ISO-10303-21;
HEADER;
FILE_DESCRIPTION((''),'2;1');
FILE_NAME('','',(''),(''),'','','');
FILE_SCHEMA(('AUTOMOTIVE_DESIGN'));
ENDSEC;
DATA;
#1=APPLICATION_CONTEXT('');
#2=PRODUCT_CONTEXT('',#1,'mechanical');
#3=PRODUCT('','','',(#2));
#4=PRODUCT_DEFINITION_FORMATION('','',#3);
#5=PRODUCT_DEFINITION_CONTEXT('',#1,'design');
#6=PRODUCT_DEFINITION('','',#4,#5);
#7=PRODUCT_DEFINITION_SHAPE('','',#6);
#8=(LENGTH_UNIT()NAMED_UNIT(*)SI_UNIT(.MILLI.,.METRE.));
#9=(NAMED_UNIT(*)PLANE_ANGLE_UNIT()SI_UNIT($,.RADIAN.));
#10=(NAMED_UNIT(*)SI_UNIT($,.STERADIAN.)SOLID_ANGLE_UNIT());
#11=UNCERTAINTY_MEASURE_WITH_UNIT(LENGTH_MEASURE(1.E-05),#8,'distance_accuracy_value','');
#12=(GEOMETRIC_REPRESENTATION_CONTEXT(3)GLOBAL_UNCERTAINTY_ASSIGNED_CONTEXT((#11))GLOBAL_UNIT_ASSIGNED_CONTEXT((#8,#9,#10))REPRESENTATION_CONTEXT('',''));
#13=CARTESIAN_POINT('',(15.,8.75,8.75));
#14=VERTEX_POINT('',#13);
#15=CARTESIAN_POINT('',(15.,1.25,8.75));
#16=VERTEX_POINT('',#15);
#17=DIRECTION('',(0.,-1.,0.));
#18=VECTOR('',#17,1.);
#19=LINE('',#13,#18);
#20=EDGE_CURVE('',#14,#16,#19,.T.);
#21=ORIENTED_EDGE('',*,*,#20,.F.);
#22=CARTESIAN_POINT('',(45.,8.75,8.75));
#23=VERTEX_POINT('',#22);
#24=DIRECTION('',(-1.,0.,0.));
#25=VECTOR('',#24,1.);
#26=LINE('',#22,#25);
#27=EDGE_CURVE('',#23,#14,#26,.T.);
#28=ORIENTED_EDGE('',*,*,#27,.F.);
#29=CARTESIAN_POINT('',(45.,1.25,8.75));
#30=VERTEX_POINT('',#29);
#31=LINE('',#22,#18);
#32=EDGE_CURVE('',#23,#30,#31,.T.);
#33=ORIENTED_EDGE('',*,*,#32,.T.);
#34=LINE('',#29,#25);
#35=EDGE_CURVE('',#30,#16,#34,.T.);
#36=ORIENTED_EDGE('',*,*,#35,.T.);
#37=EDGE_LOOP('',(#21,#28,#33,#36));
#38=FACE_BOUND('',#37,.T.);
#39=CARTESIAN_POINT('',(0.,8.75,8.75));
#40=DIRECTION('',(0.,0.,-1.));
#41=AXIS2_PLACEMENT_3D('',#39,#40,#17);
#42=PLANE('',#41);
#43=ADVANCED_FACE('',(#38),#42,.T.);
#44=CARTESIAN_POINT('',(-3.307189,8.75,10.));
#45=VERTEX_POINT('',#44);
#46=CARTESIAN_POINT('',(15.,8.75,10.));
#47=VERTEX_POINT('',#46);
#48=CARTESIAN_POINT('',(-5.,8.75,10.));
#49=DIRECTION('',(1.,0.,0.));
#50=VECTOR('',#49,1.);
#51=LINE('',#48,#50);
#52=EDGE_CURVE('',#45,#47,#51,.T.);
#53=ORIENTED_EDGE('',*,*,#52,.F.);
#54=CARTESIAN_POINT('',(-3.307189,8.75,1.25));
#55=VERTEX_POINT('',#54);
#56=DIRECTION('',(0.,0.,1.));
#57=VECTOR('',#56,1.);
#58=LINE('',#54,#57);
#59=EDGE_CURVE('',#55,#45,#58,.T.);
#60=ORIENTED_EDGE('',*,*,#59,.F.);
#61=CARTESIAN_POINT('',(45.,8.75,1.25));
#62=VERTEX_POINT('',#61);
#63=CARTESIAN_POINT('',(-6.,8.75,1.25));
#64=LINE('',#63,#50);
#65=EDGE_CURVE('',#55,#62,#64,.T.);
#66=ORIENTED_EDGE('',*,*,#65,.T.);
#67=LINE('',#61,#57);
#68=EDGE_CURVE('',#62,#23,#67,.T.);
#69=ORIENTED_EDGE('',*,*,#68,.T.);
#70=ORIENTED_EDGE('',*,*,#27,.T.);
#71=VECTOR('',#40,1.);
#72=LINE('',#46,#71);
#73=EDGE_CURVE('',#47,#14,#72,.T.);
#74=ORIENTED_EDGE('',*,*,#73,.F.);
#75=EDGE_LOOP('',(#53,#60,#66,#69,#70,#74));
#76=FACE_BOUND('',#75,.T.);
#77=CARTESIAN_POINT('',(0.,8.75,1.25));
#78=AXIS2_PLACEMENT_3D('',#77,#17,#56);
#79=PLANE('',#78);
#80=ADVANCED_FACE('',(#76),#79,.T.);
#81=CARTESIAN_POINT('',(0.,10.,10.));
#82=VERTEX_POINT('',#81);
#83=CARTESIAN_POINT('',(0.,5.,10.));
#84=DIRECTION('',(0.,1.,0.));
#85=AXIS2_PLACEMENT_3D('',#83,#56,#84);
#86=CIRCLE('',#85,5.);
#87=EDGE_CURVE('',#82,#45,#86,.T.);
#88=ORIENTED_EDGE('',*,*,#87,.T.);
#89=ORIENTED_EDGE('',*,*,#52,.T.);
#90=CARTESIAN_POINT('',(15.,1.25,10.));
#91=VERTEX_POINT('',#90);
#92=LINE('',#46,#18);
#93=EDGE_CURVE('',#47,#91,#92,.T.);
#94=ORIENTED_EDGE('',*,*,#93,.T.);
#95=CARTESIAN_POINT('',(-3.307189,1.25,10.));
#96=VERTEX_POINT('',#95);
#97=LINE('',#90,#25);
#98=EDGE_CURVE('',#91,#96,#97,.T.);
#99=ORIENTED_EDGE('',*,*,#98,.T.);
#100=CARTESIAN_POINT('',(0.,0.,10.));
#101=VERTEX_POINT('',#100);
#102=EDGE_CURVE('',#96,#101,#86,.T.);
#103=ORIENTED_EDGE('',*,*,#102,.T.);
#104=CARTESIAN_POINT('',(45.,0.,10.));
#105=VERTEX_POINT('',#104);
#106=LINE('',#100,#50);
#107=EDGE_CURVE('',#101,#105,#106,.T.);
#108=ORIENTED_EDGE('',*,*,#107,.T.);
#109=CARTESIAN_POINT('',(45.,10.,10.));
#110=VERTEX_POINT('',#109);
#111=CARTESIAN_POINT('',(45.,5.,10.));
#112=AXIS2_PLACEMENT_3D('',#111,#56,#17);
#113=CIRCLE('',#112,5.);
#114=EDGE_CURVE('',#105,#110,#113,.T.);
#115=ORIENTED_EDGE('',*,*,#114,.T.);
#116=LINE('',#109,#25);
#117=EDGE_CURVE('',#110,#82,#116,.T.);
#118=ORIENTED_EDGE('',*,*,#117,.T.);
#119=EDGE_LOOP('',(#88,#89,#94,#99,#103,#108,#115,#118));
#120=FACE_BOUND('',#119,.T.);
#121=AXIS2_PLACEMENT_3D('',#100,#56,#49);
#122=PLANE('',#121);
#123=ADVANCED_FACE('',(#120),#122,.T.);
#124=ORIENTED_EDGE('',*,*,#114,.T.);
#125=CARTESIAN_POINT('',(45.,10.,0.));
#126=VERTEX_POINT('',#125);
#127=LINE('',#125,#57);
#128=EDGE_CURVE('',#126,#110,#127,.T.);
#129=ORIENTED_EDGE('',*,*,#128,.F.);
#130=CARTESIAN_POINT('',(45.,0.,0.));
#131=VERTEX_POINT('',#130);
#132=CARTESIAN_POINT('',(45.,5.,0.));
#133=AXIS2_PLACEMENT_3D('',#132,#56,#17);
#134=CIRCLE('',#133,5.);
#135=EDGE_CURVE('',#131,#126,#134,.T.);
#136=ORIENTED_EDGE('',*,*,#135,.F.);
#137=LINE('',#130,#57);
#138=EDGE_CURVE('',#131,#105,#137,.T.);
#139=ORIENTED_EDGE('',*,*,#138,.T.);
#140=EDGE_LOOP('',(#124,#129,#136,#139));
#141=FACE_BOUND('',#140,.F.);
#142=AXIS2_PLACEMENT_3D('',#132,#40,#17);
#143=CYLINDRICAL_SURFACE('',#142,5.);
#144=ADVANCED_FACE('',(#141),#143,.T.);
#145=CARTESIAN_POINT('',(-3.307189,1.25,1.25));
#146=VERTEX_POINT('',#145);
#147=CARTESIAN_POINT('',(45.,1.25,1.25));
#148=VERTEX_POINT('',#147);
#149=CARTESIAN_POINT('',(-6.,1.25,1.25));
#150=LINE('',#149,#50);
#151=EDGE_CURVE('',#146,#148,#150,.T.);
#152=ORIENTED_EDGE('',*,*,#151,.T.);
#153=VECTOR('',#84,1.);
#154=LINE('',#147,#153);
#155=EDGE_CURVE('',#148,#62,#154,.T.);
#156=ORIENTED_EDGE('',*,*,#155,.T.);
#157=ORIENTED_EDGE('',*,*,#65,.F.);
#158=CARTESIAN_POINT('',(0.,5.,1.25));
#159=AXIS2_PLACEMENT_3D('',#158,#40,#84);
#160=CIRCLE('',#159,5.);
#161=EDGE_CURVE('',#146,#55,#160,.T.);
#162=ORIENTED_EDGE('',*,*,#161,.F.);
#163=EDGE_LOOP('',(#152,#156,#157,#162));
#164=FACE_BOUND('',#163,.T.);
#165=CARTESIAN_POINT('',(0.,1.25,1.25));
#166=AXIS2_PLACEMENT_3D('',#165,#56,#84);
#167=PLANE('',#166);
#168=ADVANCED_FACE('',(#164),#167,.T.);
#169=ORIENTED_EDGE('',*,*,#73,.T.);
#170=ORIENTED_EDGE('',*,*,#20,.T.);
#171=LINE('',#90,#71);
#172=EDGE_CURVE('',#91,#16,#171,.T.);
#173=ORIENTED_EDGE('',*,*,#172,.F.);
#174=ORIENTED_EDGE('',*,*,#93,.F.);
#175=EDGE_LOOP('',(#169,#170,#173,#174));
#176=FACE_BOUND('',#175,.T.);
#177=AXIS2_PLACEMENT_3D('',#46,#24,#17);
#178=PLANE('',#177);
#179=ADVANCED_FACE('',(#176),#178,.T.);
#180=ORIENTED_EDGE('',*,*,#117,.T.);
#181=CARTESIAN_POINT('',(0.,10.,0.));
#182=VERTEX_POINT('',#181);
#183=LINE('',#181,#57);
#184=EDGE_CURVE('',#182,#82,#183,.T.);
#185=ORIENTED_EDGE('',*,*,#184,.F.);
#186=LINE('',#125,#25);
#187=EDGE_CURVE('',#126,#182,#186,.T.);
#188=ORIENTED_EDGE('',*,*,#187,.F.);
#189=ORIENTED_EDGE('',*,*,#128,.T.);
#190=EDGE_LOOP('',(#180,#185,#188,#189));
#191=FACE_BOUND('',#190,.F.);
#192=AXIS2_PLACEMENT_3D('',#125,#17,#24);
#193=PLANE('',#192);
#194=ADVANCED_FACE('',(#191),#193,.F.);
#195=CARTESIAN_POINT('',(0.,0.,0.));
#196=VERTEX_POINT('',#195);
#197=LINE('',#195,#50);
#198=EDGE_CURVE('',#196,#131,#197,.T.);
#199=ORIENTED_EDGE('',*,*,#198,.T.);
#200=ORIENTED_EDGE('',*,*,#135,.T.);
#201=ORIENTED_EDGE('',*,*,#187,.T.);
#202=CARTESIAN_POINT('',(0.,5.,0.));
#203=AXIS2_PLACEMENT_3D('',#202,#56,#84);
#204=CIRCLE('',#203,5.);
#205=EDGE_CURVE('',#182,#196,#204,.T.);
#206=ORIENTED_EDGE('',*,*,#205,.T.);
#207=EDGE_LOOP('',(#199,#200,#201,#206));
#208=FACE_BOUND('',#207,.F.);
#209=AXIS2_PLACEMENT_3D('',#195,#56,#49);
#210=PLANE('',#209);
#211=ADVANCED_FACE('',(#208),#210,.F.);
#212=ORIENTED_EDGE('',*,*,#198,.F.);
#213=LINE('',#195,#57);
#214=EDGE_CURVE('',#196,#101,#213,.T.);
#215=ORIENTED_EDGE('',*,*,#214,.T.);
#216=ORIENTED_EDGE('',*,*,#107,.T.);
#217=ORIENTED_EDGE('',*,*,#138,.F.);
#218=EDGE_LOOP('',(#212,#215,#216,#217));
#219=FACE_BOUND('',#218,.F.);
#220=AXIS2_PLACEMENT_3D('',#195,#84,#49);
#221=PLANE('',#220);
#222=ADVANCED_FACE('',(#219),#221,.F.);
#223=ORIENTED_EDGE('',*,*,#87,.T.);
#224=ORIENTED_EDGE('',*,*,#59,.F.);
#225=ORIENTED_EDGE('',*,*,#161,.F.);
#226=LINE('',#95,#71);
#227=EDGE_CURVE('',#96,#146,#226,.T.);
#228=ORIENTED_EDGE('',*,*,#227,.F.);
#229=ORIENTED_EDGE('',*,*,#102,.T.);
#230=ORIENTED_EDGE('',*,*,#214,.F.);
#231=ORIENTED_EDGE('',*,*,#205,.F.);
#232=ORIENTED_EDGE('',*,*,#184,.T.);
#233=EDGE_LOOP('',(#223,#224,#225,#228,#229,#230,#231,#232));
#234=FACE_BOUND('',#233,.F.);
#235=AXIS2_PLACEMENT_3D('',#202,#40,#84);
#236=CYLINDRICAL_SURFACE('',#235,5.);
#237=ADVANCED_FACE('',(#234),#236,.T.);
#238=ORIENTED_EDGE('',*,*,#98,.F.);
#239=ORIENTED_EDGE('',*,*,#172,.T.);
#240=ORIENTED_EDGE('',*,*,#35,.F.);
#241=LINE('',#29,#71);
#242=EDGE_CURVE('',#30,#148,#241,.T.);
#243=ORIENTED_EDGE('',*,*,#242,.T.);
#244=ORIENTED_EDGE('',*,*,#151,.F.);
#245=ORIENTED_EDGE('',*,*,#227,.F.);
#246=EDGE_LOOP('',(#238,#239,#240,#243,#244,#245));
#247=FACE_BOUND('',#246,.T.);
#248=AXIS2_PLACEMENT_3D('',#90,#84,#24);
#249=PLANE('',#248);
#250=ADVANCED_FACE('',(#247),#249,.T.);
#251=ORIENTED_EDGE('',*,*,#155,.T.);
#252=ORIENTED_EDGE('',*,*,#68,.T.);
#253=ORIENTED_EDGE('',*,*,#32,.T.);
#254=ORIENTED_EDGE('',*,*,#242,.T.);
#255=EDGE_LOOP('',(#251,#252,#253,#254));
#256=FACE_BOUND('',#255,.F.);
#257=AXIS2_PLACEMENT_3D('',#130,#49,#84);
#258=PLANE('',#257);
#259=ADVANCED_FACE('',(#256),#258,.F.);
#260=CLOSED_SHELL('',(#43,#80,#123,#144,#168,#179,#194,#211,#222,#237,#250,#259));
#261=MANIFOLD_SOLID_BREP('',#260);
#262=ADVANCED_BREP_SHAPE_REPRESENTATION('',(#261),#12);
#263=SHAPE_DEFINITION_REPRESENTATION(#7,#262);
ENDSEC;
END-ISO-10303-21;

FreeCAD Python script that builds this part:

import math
import FreeCAD as App
import Part
import Sketcher
from FreeCAD import Vector


def add_polygon(sketch, points):
    """Adds a closed chain of lines whose ends are joined by coincident constraints."""
    first, n = sketch.GeometryCount, len(points)
    for a, b in zip(points, points[1:] + points[:1]):
        sketch.addGeometry(Part.LineSegment(App.Vector(*a, 0), App.Vector(*b, 0)), False)
    for i in range(n):
        sketch.addConstraint(Sketcher.Constraint("Coincident", first + i, 2, first + (i + 1) % n, 1))

doc = App.newDocument("Part")
body = doc.addObject("PartDesign::Body", "Body")

sketch1 = body.newObject("Sketcher::SketchObject", "Sketch")
sketch1.AttachmentSupport = (doc.getObject("XY_Plane"), [""])
sketch1.MapMode = "FlatFace"
sketch1.addGeometry(Part.ArcOfCircle(Part.Circle(Vector(0, 5, 0), Vector(0, 0, 1), 5), math.radians(90), math.radians(270)), False)
sketch1.addGeometry(Part.LineSegment(Vector(0, 0, 0), Vector(45, 0, 0)), False)
sketch1.addGeometry(Part.ArcOfCircle(Part.Circle(Vector(45, 5, 0), Vector(0, 0, 1), 5), math.radians(-90), math.radians(90)), False)
sketch1.addGeometry(Part.LineSegment(Vector(45, 10, 0), Vector(0, 10, 0)), False)
sketch1.addConstraint(Sketcher.Constraint("Tangent", 0, 2, 1, 1))
sketch1.addConstraint(Sketcher.Constraint("Tangent", 1, 2, 2, 1))
sketch1.addConstraint(Sketcher.Constraint("Tangent", 2, 2, 3, 1))
sketch1.addConstraint(Sketcher.Constraint("Tangent", 3, 2, 0, 1))
sketch1.addConstraint(Sketcher.Constraint("Horizontal", 1))
sketch1.addConstraint(Sketcher.Constraint("Horizontal", 3))
sketch1.addConstraint(Sketcher.Constraint("Coincident", 0, 2, -1, 1))
sketch1.addConstraint(Sketcher.Constraint("Radius", 0, 5.0))
sketch1.addConstraint(Sketcher.Constraint("DistanceX", 1, 1, 1, 2, 45.0))
pad1 = body.newObject("PartDesign::Pad", "Pad")
pad1.Profile = sketch1
pad1.Length = 10

sketch2 = body.newObject("Sketcher::SketchObject", "Sketch001")
sketch2.AttachmentSupport = (doc.getObject("YZ_Plane"), [""])
sketch2.MapMode = "FlatFace"
add_polygon(sketch2, [(1.25, 8.75), (1.25, 1.25), (8.75, 1.25), (8.75, 8.75)])
sketch2.addConstraint(Sketcher.Constraint("Vertical", 0))
sketch2.addConstraint(Sketcher.Constraint("Horizontal", 1))
sketch2.addConstraint(Sketcher.Constraint("Vertical", 2))
sketch2.addConstraint(Sketcher.Constraint("Horizontal", 3))
sketch2.addConstraint(Sketcher.Constraint("Equal", 3, 0))
sketch2.addConstraint(Sketcher.Constraint("DistanceX", 1, 1, 1, 2, 7.5))
sketch2.addConstraint(Sketcher.Constraint("DistanceX", -1, 1, 0, 2, 1.25))
sketch2.addConstraint(Sketcher.Constraint("DistanceY", -1, 1, 0, 2, 1.25))
pocket1 = body.newObject("PartDesign::Pocket", "Pocket")
pocket1.Profile = sketch2
pocket1.Type = "TwoLengths"
pocket1.Length = 45
pocket1.Length2 = 6
pocket1.Reversed = True

sketch3 = body.newObject("Sketcher::SketchObject", "Sketch002")
sketch3.AttachmentSupport = (doc.getObject("XY_Plane"), [""])
sketch3.MapMode = "FlatFace"
sketch3.AttachmentOffset = App.Placement(Vector(0, 0, 10), App.Rotation())
sketch3.addGeometry(Part.ArcOfCircle(Part.Circle(Vector(0, 5, 0), Vector(0, 0, 1), 5), math.radians(131.409622), math.radians(228.590378)), False)
sketch3.addGeometry(Part.LineSegment(Vector(-3.307189, 1.25, 0), Vector(15, 1.25, 0)), False)
sketch3.addGeometry(Part.LineSegment(Vector(15, 1.25, 0), Vector(15, 8.75, 0)), False)
sketch3.addGeometry(Part.LineSegment(Vector(15, 8.75, 0), Vector(-3.307189, 8.75, 0)), False)
sketch3.addConstraint(Sketcher.Constraint("Coincident", 0, 2, 1, 1))
sketch3.addConstraint(Sketcher.Constraint("Coincident", 1, 2, 2, 1))
sketch3.addConstraint(Sketcher.Constraint("Coincident", 2, 2, 3, 1))
sketch3.addConstraint(Sketcher.Constraint("Coincident", 3, 2, 0, 1))
sketch3.addConstraint(Sketcher.Constraint("Horizontal", 1))
sketch3.addConstraint(Sketcher.Constraint("Vertical", 2))
sketch3.addConstraint(Sketcher.Constraint("Horizontal", 3))
sketch3.addConstraint(Sketcher.Constraint("PointOnObject", 0, 3, -2))
sketch3.addConstraint(Sketcher.Constraint("Vertical", 0, 2, 3, 2))
sketch3.addConstraint(Sketcher.Constraint("DistanceY", 2, 1, 2, 2, 7.5))
sketch3.addConstraint(Sketcher.Constraint("Radius", 0, 5.0))
sketch3.addConstraint(Sketcher.Constraint("DistanceY", -1, 1, 0, 3, 5.0))
sketch3.addConstraint(Sketcher.Constraint("DistanceX", -1, 1, 1, 2, 15.0))
pocket2 = body.newObject("PartDesign::Pocket", "Pocket001")
pocket2.Profile = sketch3
pocket2.Length = 1.25

doc.recompute()
